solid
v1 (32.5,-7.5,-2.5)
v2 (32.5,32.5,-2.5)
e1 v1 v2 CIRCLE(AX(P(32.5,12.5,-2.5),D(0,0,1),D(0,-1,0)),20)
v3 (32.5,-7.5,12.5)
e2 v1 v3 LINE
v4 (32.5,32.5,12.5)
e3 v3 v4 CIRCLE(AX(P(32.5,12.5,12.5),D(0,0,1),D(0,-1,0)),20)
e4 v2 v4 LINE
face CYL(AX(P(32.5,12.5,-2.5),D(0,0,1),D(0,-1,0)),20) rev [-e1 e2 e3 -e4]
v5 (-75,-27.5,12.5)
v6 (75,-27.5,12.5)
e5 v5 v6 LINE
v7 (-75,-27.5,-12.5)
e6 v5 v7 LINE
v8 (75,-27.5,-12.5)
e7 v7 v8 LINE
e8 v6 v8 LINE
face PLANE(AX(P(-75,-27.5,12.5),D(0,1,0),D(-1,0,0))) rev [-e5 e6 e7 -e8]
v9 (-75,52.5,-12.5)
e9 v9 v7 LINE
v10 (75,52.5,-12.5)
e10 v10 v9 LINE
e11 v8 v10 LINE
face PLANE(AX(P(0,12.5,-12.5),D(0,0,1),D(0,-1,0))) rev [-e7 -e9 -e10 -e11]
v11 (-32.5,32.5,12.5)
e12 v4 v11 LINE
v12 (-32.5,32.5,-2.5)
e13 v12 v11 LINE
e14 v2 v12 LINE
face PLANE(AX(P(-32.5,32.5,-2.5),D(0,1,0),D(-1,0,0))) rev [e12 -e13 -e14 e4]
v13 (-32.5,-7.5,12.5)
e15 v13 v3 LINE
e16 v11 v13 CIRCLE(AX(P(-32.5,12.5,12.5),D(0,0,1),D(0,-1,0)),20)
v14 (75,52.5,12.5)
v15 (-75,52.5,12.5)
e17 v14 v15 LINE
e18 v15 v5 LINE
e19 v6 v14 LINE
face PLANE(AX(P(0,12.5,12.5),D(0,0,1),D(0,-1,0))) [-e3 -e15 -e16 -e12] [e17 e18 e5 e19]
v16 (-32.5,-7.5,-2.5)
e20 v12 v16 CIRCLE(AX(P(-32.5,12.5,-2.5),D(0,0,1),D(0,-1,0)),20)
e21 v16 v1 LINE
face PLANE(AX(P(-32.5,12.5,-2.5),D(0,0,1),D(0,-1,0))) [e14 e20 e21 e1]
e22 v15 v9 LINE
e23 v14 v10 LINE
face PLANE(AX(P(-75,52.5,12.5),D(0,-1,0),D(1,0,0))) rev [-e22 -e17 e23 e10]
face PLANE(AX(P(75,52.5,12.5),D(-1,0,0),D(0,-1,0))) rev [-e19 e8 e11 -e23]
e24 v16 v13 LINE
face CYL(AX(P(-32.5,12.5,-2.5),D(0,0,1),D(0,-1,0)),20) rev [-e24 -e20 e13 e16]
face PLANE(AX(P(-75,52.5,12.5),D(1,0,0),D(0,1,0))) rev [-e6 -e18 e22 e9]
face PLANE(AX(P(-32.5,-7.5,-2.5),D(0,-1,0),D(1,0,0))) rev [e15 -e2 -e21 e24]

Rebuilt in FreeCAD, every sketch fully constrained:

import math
import FreeCAD as App
import Part
import Sketcher
Q = App.Units.Quantity


def add_polygon(sketch, points):
    """Adds a closed chain of lines whose ends are joined by coincident constraints."""
    first, n = sketch.GeometryCount, len(points)
    for a, b in zip(points, points[1:] + points[:1]):
        sketch.addGeometry(Part.LineSegment(App.Vector(*a, 0), App.Vector(*b, 0)), False)
    for i in range(n):
        sketch.addConstraint(Sketcher.Constraint("Coincident", first + i, 2, first + (i + 1) % n, 1))

doc = App.newDocument("Part")
body = doc.addObject("PartDesign::Body", "Body")

sketch1 = doc.addObject("Sketcher::SketchObject", "Sketch")
body.addObject(sketch1)
sketch1.AttachmentSupport = (doc.XZ_Plane, [""])
sketch1.MapMode = "FlatFace"
add_polygon(sketch1, [(-75, -40), (-75, 40), (75, 40), (75, -40)])
sketch1.addConstraint(Sketcher.Constraint("Vertical", 0))
sketch1.addConstraint(Sketcher.Constraint("Horizontal", 1))
sketch1.addConstraint(Sketcher.Constraint("Vertical", 2))
sketch1.addConstraint(Sketcher.Constraint("Horizontal", 3))
sketch1.addConstraint(Sketcher.Constraint("Symmetric", 0, 2, 2, 2, -1, 1))
sketch1.addConstraint(Sketcher.Constraint("DistanceX", 1, 1, 1, 2, Q("150 mm")))
sketch1.addConstraint(Sketcher.Constraint("DistanceY", 0, 1, 0, 2, Q("80 mm")))
pad1 = doc.addObject("PartDesign::Pad", "Pad")
body.addObject(pad1)
pad1.Profile = sketch1
pad1.Length = 25
pad1.Reversed = True

sketch2 = doc.addObject("Sketcher::SketchObject", "Sketch001")
body.addObject(sketch2)
sketch2.AttachmentSupport = (doc.XZ_Plane, [""])
sketch2.MapMode = "FlatFace"
sketch2.AttachmentOffset = App.Placement(App.Vector(0, 0, -25), App.Rotation())
sketch2.addGeometry(Part.LineSegment(App.Vector(32.5, -20, 0), App.Vector(-32.5, -20, 0)), False)
sketch2.addGeometry(Part.ArcOfCircle(Part.Circle(App.Vector(-32.5, 0, 0), App.Vector(0, 0, 1), 20), math.radians(90), math.radians(270)), False)
sketch2.addGeometry(Part.LineSegment(App.Vector(-32.5, 20, 0), App.Vector(32.5, 20, 0)), False)
sketch2.addGeometry(Part.ArcOfCircle(Part.Circle(App.Vector(32.5, 0, 0), App.Vector(0, 0, 1), 20), math.radians(-90), math.radians(90)), False)
sketch2.addConstraint(Sketcher.Constraint("Tangent", 0, 2, 1, 2))
sketch2.addConstraint(Sketcher.Constraint("Tangent", 1, 1, 2, 1))
sketch2.addConstraint(Sketcher.Constraint("Tangent", 2, 2, 3, 2))
sketch2.addConstraint(Sketcher.Constraint("Tangent", 3, 1, 0, 1))
sketch2.addConstraint(Sketcher.Constraint("Horizontal", 0))
sketch2.addConstraint(Sketcher.Constraint("Horizontal", 2))
sketch2.addConstraint(Sketcher.Constraint("Symmetric", 1, 3, 3, 3, -1, 1))
sketch2.addConstraint(Sketcher.Constraint("Radius", 1, Q("20 mm")))
sketch2.addConstraint(Sketcher.Constraint("DistanceX", 0, 2, 0, 1, Q("65 mm")))
pocket1 = doc.addObject("PartDesign::Pocket", "Pocket")
body.addObject(pocket1)
pocket1.Profile = sketch2
pocket1.Length = 15
pocket1.Reversed = True
body2 = doc.addObject("PartDesign::Body", "Body001")
doc.recompute()

body.Placement = App.Placement(App.Vector(0, 12.5, -12.5), App.Rotation(App.Vector(1, 0, 0), 90))
boolean = doc.addObject("PartDesign::Boolean", "Boolean")
body2.addObject(boolean)
boolean.Type = "Fuse"
boolean.addObjects([body])

doc.recompute()
